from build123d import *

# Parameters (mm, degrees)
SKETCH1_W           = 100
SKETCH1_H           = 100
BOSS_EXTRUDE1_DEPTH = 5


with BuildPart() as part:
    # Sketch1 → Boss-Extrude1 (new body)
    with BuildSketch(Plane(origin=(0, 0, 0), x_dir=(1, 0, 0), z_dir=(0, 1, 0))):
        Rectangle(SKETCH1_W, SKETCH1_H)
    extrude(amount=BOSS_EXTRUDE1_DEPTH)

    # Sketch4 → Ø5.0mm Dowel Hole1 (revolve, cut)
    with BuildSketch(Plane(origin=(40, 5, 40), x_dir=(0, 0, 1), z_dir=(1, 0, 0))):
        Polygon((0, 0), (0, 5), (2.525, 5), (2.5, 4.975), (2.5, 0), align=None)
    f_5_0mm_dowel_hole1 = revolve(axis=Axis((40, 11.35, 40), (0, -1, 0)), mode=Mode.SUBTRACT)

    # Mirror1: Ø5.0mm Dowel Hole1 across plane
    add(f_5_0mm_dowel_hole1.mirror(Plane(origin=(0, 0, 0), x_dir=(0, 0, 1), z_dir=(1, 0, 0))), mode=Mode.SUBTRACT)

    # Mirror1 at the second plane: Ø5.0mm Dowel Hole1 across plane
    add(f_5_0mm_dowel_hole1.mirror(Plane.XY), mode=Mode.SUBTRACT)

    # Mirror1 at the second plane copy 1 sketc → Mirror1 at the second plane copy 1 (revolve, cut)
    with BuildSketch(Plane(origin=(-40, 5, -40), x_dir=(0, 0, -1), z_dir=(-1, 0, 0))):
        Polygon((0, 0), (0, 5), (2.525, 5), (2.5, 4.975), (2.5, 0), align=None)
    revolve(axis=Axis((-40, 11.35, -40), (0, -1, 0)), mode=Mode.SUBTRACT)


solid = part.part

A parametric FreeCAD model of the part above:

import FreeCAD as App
import Part
import Sketcher

V = App.Vector
Q = App.Units.Quantity

doc = App.newDocument("Part")
params = doc.addObject("Spreadsheet::Sheet", "Params")
for row, (alias, value) in enumerate([
    ("sketch1_width", "100 mm"),
    ("pad1_length", "5 mm"),
    ("sketch2_width", "5 mm"),
    ("sketch2_height", "2.5 mm"),
    ("groove_angle", "360 deg"),
    ("sketch3_width", "5 mm"),
    ("sketch3_height", "2.5 mm"),
    ("groove2_angle", "360 deg"),
], start=1):
    params.set(f"A{row}", alias)
    params.set(f"B{row}", "=" + value)
    params.setAlias(f"B{row}", alias)

body = doc.addObject("PartDesign::Body", "Body")

sketch1 = body.newObject("Sketcher::SketchObject", "Sketch")
sketch1.AttachmentSupport = (doc.getObject("XZ_Plane"), [""])
sketch1.MapMode = "FlatFace"
sketch1.addGeometry(Part.LineSegment(V(-50, -50, 0), V(-50, 50, 0)), False)
sketch1.addGeometry(Part.LineSegment(V(-50, 50, 0), V(50, 50, 0)), False)
sketch1.addGeometry(Part.LineSegment(V(50, 50, 0), V(50, -50, 0)), False)
sketch1.addGeometry(Part.LineSegment(V(50, -50, 0), V(-50, -50, 0)), False)
sketch1.addConstraint(Sketcher.Constraint("Coincident", 0, 2, 1, 1))
sketch1.addConstraint(Sketcher.Constraint("Coincident", 1, 2, 2, 1))
sketch1.addConstraint(Sketcher.Constraint("Coincident", 2, 2, 3, 1))
sketch1.addConstraint(Sketcher.Constraint("Coincident", 3, 2, 0, 1))
sketch1.addConstraint(Sketcher.Constraint("Vertical", 0))
sketch1.addConstraint(Sketcher.Constraint("Horizontal", 1))
sketch1.addConstraint(Sketcher.Constraint("Vertical", 2))
sketch1.addConstraint(Sketcher.Constraint("Horizontal", 3))
sketch1.addConstraint(Sketcher.Constraint("Symmetric", 0, 2, 2, 2, -1, 1))
sketch1.addConstraint(Sketcher.Constraint("Equal", 3, 0))
sketch1.addConstraint(Sketcher.Constraint("DistanceX", 1, 1, 1, 2, Q("100 mm")))
sketch1.setExpression("Constraints[10]", "Params.sketch1_width")
pad1 = body.newObject("PartDesign::Pad", "Pad")
pad1.Profile = sketch1
pad1.setExpression("Length", "Params.pad1_length")
pad1.Reversed = True

sketch2 = body.newObject("Sketcher::SketchObject", "Sketch001")
sketch2.AttachmentSupport = (doc.getObject("YZ_Plane"), [""])
sketch2.MapMode = "FlatFace"
sketch2.AttachmentOffset = App.Placement(V(0, 0, 40), App.Rotation())
sketch2.addGeometry(Part.LineSegment(V(0, 40, 0), V(5, 40, 0)), False)
sketch2.addGeometry(Part.LineSegment(V(5, 40, 0), V(5, 42.5, 0)), False)
sketch2.addGeometry(Part.LineSegment(V(5, 42.5, 0), V(0.025, 42.5, 0)), False)
sketch2.addGeometry(Part.LineSegment(V(0.025, 42.5, 0), V(0, 42.525, 0)), False)
sketch2.addGeometry(Part.LineSegment(V(0, 42.525, 0), V(0, 40, 0)), False)
sketch2.addGeometry(Part.LineSegment(V(5, 40, 0), V(0, 40, 0)), True)
sketch2.addConstraint(Sketcher.Constraint("Coincident", 0, 2, 1, 1))
sketch2.addConstraint(Sketcher.Constraint("Coincident", 1, 2, 2, 1))
sketch2.addConstraint(Sketcher.Constraint("Coincident", 2, 2, 3, 1))
sketch2.addConstraint(Sketcher.Constraint("Coincident", 3, 2, 4, 1))
sketch2.addConstraint(Sketcher.Constraint("Coincident", 4, 2, 0, 1))
sketch2.addConstraint(Sketcher.Constraint("Horizontal", 0))
sketch2.addConstraint(Sketcher.Constraint("Vertical", 1))
sketch2.addConstraint(Sketcher.Constraint("Horizontal", 2))
sketch2.addConstraint(Sketcher.Constraint("Vertical", 4))
sketch2.addConstraint(Sketcher.Constraint("Horizontal", 5))
sketch2.addConstraint(Sketcher.Constraint("Coincident", 5, 1, 0, 2))
sketch2.addConstraint(Sketcher.Constraint("PointOnObject", 3, 2, -2))
sketch2.addConstraint(Sketcher.Constraint("PointOnObject", 5, 2, -2))
sketch2.addConstraint(Sketcher.Constraint("DistanceX", 0, 1, 0, 2, Q("5 mm")))
sketch2.addConstraint(Sketcher.Constraint("Angle", 3, Q("135 deg")))
sketch2.addConstraint(Sketcher.Constraint("DistanceY", 1, 1, 1, 2, Q("2.5 mm")))
sketch2.addConstraint(Sketcher.Constraint("DistanceY", -1, 1, 0, 2, Q("40 mm")))
sketch2.addConstraint(Sketcher.Constraint("DistanceX", 2, 2, 2, 1, Q("4.975 mm")))
sketch2.setExpression("Constraints[13]", "Params.sketch2_width")
sketch2.setExpression("Constraints[15]", "Params.sketch2_height")
groove = body.newObject("PartDesign::Groove", "Groove")
groove.Profile = sketch2
groove.ReferenceAxis = (sketch2, ["Axis0"])
groove.setExpression("Angle", "Params.groove_angle")
doc.recompute()

mirrored = body.newObject("PartDesign::Mirrored", "Mirrored")
mirrored.Originals = [groove]
mirrored.MirrorPlane = (doc.getObject("YZ_Plane"), [""])
body.Tip = mirrored
doc.recompute()

mirrored2 = body.newObject("PartDesign::Mirrored", "Mirrored001")
mirrored2.Originals = [groove]
mirrored2.MirrorPlane = (doc.getObject("XY_Plane"), [""])
body.Tip = mirrored2

sketch3 = body.newObject("Sketcher::SketchObject", "Sketch002")
sketch3.AttachmentSupport = (doc.getObject("YZ_Plane"), [""])
sketch3.MapMode = "FlatFace"
sketch3.AttachmentOffset = App.Placement(V(0, 0, -40), App.Rotation())
sketch3.addGeometry(Part.LineSegment(V(0, -40, 0), V(5, -40, 0)), False)
sketch3.addGeometry(Part.LineSegment(V(5, -40, 0), V(5, -42.5, 0)), False)
sketch3.addGeometry(Part.LineSegment(V(5, -42.5, 0), V(0.025, -42.5, 0)), False)
sketch3.addGeometry(Part.LineSegment(V(0.025, -42.5, 0), V(0, -42.525, 0)), False)
sketch3.addGeometry(Part.LineSegment(V(0, -42.525, 0), V(0, -40, 0)), False)
sketch3.addGeometry(Part.LineSegment(V(5, -40, 0), V(0, -40, 0)), True)
sketch3.addConstraint(Sketcher.Constraint("Coincident", 0, 2, 1, 1))
sketch3.addConstraint(Sketcher.Constraint("Coincident", 1, 2, 2, 1))
sketch3.addConstraint(Sketcher.Constraint("Coincident", 2, 2, 3, 1))
sketch3.addConstraint(Sketcher.Constraint("Coincident", 3, 2, 4, 1))
sketch3.addConstraint(Sketcher.Constraint("Coincident", 4, 2, 0, 1))
sketch3.addConstraint(Sketcher.Constraint("Horizontal", 0))
sketch3.addConstraint(Sketcher.Constraint("Vertical", 1))
sketch3.addConstraint(Sketcher.Constraint("Horizontal", 2))
sketch3.addConstraint(Sketcher.Constraint("Vertical", 4))
sketch3.addConstraint(Sketcher.Constraint("Horizontal", 5))
sketch3.addConstraint(Sketcher.Constraint("Coincident", 5, 1, 0, 2))
sketch3.addConstraint(Sketcher.Constraint("PointOnObject", 3, 2, -2))
sketch3.addConstraint(Sketcher.Constraint("PointOnObject", 5, 2, -2))
sketch3.addConstraint(Sketcher.Constraint("DistanceX", 0, 1, 0, 2, Q("5 mm")))
sketch3.addConstraint(Sketcher.Constraint("Angle", 3, Q("-135 deg")))
sketch3.addConstraint(Sketcher.Constraint("DistanceY", 1, 2, 1, 1, Q("2.5 mm")))
sketch3.addConstraint(Sketcher.Constraint("DistanceY", 0, 2, -1, 1, Q("40 mm")))
sketch3.addConstraint(Sketcher.Constraint("DistanceX", 2, 2, 2, 1, Q("4.975 mm")))
sketch3.setExpression("Constraints[13]", "Params.sketch3_width")
sketch3.setExpression("Constraints[15]", "Params.sketch3_height")
groove2 = body.newObject("PartDesign::Groove", "Groove001")
groove2.Profile = sketch3
groove2.ReferenceAxis = (sketch3, ["Axis0"])
groove2.setExpression("Angle", "Params.groove2_angle")

doc.recompute()
